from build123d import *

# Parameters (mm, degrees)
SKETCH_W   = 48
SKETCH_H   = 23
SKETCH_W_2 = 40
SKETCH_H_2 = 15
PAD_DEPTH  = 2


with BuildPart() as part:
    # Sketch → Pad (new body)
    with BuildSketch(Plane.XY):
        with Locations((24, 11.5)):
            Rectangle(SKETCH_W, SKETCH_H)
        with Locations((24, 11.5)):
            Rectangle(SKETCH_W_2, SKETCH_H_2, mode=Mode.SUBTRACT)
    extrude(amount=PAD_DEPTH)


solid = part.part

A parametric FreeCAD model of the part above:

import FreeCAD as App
import Part
import Sketcher

V = App.Vector


def add_polygon(sketch, points):
    """Adds a closed chain of lines whose ends are joined by coincident constraints."""
    first, n = sketch.GeometryCount, len(points)
    for a, b in zip(points, points[1:] + points[:1]):
        sketch.addGeometry(Part.LineSegment(App.Vector(*a, 0), App.Vector(*b, 0)), False)
    for i in range(n):
        sketch.addConstraint(Sketcher.Constraint("Coincident", first + i, 2, first + (i + 1) % n, 1))

doc = App.newDocument("Part")
body = doc.addObject("PartDesign::Body", "Body")

# Sketch on XY plane
sketch1 = body.newObject("Sketcher::SketchObject", "Sketch")
sketch1.AttachmentSupport = (doc.getObject("XY_Plane"), [""])
sketch1.MapMode = "FlatFace"
add_polygon(sketch1, [(0, 23), (0, 0), (48, 0), (48, 23)])  # lines 0-3
add_polygon(sketch1, [(44, 4), (4, 4), (4, 19), (44, 19)])  # lines 4-7
sketch1.addConstraint([
    Sketcher.Constraint("Vertical", 0),
    Sketcher.Constraint("Horizontal", 1),
    Sketcher.Constraint("Vertical", 2),
    Sketcher.Constraint("Horizontal", 3),
    Sketcher.Constraint("Horizontal", 4),
    Sketcher.Constraint("Vertical", 5),
    Sketcher.Constraint("Horizontal", 6),
    Sketcher.Constraint("Vertical", 7),
    Sketcher.Constraint("Coincident", 0, 2, -1, 1),
    Sketcher.Constraint("DistanceX", 1, 1, 1, 2, 48.0),
    Sketcher.Constraint("DistanceX", 4, 2, 4, 1, 40.0),
    Sketcher.Constraint("DistanceY", 0, 2, 0, 1, 23.0),
    Sketcher.Constraint("DistanceY", 5, 1, 5, 2, 15.0),
    Sketcher.Constraint("DistanceX", -1, 1, 4, 2, 4.0),
    Sketcher.Constraint("DistanceY", -1, 1, 4, 2, 4.0),
])
pad1 = body.newObject("PartDesign::Pad", "Pad")
pad1.Profile = sketch1
pad1.Length = 2

doc.recompute()
